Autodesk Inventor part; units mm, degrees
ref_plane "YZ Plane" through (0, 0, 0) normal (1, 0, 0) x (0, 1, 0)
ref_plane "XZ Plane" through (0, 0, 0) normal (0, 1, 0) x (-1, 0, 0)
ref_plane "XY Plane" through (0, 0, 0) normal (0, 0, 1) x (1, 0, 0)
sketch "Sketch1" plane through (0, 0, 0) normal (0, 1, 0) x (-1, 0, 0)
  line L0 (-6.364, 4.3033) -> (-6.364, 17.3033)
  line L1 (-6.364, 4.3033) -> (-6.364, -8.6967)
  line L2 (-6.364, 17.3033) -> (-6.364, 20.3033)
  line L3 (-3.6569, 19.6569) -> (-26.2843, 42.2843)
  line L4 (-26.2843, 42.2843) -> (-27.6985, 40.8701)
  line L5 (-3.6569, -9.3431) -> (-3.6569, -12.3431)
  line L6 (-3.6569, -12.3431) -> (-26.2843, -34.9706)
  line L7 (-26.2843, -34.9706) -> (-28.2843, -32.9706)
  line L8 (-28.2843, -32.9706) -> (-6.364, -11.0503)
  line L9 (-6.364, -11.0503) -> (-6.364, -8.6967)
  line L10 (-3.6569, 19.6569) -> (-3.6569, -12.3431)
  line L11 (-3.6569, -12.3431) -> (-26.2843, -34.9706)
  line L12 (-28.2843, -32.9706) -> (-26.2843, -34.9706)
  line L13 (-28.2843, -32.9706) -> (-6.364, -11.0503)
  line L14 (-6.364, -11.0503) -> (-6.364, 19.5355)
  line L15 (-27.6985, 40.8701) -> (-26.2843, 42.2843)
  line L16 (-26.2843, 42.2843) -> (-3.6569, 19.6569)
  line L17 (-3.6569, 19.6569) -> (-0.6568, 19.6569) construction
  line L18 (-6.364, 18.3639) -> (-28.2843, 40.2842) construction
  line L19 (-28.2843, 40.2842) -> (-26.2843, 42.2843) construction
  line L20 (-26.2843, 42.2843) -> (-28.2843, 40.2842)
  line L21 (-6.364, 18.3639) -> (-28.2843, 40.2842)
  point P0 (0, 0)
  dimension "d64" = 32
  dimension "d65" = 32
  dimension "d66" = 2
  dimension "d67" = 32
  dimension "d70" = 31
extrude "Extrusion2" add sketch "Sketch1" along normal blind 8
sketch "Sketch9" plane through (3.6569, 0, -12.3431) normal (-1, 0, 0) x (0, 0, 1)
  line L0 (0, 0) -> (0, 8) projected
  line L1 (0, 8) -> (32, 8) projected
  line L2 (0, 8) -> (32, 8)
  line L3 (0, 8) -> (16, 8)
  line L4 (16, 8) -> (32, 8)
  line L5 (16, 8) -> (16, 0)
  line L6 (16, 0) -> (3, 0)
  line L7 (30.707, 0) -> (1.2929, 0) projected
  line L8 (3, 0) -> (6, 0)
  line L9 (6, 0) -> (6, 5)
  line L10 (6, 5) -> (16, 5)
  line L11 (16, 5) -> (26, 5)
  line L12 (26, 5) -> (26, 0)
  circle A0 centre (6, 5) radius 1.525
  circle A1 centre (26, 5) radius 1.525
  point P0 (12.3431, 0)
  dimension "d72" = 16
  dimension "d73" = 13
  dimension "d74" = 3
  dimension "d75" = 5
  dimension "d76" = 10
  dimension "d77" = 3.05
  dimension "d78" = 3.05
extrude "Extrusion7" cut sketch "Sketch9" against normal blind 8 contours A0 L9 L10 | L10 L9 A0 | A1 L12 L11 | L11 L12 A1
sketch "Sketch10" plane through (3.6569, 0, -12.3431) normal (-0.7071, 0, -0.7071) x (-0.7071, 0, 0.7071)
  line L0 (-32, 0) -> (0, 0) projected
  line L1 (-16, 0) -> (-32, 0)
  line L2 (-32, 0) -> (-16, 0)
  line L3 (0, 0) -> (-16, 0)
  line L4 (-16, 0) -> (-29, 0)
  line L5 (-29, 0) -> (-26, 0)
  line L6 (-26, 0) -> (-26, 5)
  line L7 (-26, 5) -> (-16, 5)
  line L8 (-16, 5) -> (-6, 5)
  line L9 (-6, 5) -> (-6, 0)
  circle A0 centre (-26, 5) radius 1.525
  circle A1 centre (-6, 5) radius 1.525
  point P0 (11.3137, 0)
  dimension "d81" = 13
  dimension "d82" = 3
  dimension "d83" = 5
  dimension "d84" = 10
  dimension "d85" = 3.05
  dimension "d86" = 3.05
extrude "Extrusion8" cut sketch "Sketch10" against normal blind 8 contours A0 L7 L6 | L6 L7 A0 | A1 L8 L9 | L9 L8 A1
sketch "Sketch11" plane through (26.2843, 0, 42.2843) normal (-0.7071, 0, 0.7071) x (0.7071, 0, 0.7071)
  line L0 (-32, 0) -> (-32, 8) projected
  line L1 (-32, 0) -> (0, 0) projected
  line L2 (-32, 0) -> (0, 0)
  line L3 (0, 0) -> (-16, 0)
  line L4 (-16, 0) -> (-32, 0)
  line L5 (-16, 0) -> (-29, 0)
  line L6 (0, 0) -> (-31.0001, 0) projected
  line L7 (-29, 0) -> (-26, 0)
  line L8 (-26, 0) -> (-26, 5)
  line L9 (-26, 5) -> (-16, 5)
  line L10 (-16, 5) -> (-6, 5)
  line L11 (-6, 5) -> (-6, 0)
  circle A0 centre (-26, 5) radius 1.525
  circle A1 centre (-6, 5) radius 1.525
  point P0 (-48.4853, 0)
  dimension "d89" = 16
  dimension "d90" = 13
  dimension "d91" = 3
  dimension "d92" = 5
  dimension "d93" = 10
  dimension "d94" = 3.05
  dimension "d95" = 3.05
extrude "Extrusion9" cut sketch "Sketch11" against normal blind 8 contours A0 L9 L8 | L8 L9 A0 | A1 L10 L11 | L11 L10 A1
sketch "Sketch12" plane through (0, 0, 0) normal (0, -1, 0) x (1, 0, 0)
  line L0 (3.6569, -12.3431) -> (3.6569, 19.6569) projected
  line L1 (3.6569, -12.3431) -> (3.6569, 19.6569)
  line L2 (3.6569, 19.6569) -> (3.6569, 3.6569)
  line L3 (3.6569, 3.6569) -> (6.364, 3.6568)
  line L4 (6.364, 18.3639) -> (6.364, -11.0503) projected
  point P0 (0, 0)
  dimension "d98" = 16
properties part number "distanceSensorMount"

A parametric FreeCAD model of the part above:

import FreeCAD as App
import Part
import Sketcher

doc = App.newDocument("Part")
body = doc.addObject("PartDesign::Body", "Body")

sketch1 = body.newObject("Sketcher::SketchObject", "Sketch")
sketch1.AttachmentSupport = (doc.getObject("XZ_Plane"), [""])
sketch1.MapMode = "FlatFace"
sketch1.addGeometry([
    Part.LineSegment(App.Vector(6.4, 18.4, 0), App.Vector(6.4, -11.1, 0)),
    Part.LineSegment(App.Vector(6.4, -11.1, 0), App.Vector(28.3, -33, 0)),
    Part.LineSegment(App.Vector(28.3, -33, 0), App.Vector(26.3, -35, 0)),
    Part.LineSegment(App.Vector(26.3, -35, 0), App.Vector(3.7, -12.3, 0)),
    Part.LineSegment(App.Vector(3.7, -12.3, 0), App.Vector(3.7, 19.7, 0)),
    Part.LineSegment(App.Vector(3.7, 19.7, 0), App.Vector(26.3, 42.3, 0)),
    Part.LineSegment(App.Vector(26.3, 42.3, 0), App.Vector(27.7, 40.9, 0)),
    Part.LineSegment(App.Vector(27.7, 40.9, 0), App.Vector(28.3, 40.3, 0)),
    Part.LineSegment(App.Vector(28.3, 40.3, 0), App.Vector(6.4, 18.4, 0)),
], False)
sketch1.addConstraint([
    Sketcher.Constraint("Coincident", 0, 2, 1, 1),
    Sketcher.Constraint("Coincident", 1, 2, 2, 1),
    Sketcher.Constraint("Coincident", 2, 2, 3, 1),
    Sketcher.Constraint("Coincident", 3, 2, 4, 1),
    Sketcher.Constraint("Coincident", 4, 2, 5, 1),
    Sketcher.Constraint("Coincident", 5, 2, 6, 1),
    Sketcher.Constraint("Coincident", 6, 2, 7, 1),
    Sketcher.Constraint("Coincident", 7, 2, 8, 1),
    Sketcher.Constraint("Coincident", 8, 2, 0, 1),
    Sketcher.Constraint("Vertical", 0),
    Sketcher.Constraint("Vertical", 4),
    Sketcher.Constraint("Perpendicular", 1, 2),
    Sketcher.Constraint("Perpendicular", 2, 3),
    Sketcher.Constraint("Perpendicular", 3, 5),
    Sketcher.Constraint("Perpendicular", 5, 6),
    Sketcher.Constraint("Parallel", 6, 7),
    Sketcher.Constraint("Perpendicular", 7, 8),
    Sketcher.Constraint("Vertical", 2, 2, 5, 2),
    Sketcher.Constraint("Vertical", 1, 2, 7, 2),
    Sketcher.Constraint("Equal", 3, 5),
    Sketcher.Constraint("DistanceY", 4, 1, 4, 2, 32.0),
    Sketcher.Constraint("Distance", 1, 31.0),
    Sketcher.Constraint("Distance", 3, 32.0),
    Sketcher.Constraint("Distance", 6, 2.0),
    Sketcher.Constraint("DistanceX", 2, 2, 1, 2, 2.0),
    Sketcher.Constraint("DistanceY", -1, 1, 6, 2, 40.87),
    Sketcher.Constraint("DistanceX", -1, 1, 0, 2, 6.364),
])
pad1 = body.newObject("PartDesign::Pad", "Pad")
pad1.Profile = sketch1
pad1.Length = 8
pad1.Reversed = True

sketch2 = body.newObject("Sketcher::SketchObject", "Sketch001")
sketch2.AttachmentSupport = (doc.getObject("YZ_Plane"), [""])
sketch2.MapMode = "FlatFace"
sketch2.AttachmentOffset = App.Placement(App.Vector(0, 0, 3.6569), App.Rotation())
sketch2.addGeometry([
    Part.Circle(App.Vector(5, -6.3, 0), App.Vector(0, 0, 1), 1.5),
    Part.Circle(App.Vector(5, 13.7, 0), App.Vector(0, 0, 1), 1.5),
], False)
sketch2.addConstraint([
    Sketcher.Constraint("Equal", 0, 1),
    Sketcher.Constraint("Vertical", 0, 3, 1, 3),
    Sketcher.Constraint("Diameter", 0, 3.05),
    Sketcher.Constraint("DistanceX", -1, 1, 0, 3, 5.0),
    Sketcher.Constraint("DistanceY", 0, 3, 1, 3, 20.0),
    Sketcher.Constraint("DistanceY", 0, 3, -1, 1, 6.343),
])
pocket1 = body.newObject("PartDesign::Pocket", "Pocket")
pocket1.Profile = sketch2
pocket1.Length = 8
pocket1.Reversed = True

sketch3 = body.newObject("Sketcher::SketchObject", "Sketch002")
sketch3.Placement = App.Placement(App.Vector(3.6569, 0, -12.3431), App.Rotation(App.Vector(-0.707106781, 0, 0.707106781), App.Vector(0, 0.999999999, 0), App.Vector(-0.707106781, 0, -0.707106781), "ZXY"))
sketch3.addGeometry([
    Part.Circle(App.Vector(-26, 5, 0), App.Vector(0, 0, 1), 1.5),
    Part.Circle(App.Vector(-6, 5, 0), App.Vector(0, 0, 1), 1.5),
], False)
sketch3.addConstraint([
    Sketcher.Constraint("Equal", 0, 1),
    Sketcher.Constraint("Horizontal", 0, 3, 1, 3),
    Sketcher.Constraint("Diameter", 0, 3.05),
    Sketcher.Constraint("DistanceY", -1, 1, 0, 3, 5.0),
    Sketcher.Constraint("DistanceX", 0, 3, -1, 1, 26.0),
    Sketcher.Constraint("DistanceX", 1, 3, -1, 1, 6.0),
])
pocket2 = body.newObject("PartDesign::Pocket", "Pocket001")
pocket2.Profile = sketch3
pocket2.Length = 8

sketch4 = body.newObject("Sketcher::SketchObject", "Sketch003")
sketch4.Placement = App.Placement(App.Vector(26.2843, 0, 42.2843), App.Rotation(App.Vector(0.707106781, 0, 0.707106781), App.Vector(0, 0.999999999, 0), App.Vector(-0.707106781, 0, 0.707106781), "ZXY"))
sketch4.addGeometry([
    Part.Circle(App.Vector(-26, 5, 0), App.Vector(0, 0, 1), 1.5),
    Part.Circle(App.Vector(-6, 5, 0), App.Vector(0, 0, 1), 1.5),
], False)
sketch4.addConstraint([
    Sketcher.Constraint("Equal", 0, 1),
    Sketcher.Constraint("Horizontal", 0, 3, 1, 3),
    Sketcher.Constraint("Diameter", 0, 3.05),
    Sketcher.Constraint("DistanceY", -1, 1, 0, 3, 5.0),
    Sketcher.Constraint("DistanceX", 0, 3, -1, 1, 26.0),
    Sketcher.Constraint("DistanceX", 1, 3, -1, 1, 6.0),
])
pocket3 = body.newObject("PartDesign::Pocket", "Pocket002")
pocket3.Profile = sketch4
pocket3.Length = 8

doc.recompute()
